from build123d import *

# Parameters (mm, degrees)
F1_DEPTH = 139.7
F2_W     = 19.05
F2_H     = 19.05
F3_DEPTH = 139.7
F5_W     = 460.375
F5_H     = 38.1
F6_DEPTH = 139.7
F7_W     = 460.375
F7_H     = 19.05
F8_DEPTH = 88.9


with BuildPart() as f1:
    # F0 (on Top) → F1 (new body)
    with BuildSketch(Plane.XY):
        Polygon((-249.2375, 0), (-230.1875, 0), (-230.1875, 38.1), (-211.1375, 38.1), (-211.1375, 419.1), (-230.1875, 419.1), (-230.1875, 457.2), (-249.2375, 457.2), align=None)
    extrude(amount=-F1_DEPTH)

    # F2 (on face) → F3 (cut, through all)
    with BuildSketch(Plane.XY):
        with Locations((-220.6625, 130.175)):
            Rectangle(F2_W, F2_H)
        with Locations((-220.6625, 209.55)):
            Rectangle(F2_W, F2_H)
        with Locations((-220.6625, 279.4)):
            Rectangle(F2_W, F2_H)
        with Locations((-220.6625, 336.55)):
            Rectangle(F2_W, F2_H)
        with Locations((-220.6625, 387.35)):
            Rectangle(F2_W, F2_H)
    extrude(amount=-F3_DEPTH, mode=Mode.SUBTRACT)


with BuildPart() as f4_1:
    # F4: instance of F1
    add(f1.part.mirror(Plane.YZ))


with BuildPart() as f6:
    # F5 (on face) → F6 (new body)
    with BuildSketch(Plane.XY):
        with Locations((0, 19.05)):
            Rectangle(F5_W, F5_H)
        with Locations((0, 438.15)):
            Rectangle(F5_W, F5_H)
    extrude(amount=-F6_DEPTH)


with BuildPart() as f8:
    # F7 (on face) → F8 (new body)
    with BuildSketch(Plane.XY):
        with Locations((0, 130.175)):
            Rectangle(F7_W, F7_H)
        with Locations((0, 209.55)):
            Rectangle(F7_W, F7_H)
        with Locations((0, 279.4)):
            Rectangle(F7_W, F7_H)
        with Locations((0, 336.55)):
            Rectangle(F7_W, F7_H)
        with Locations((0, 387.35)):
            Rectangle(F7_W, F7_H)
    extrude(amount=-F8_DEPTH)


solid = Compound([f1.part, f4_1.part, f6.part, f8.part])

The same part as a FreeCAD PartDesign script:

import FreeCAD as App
import Part
import Sketcher

V = App.Vector
Q = App.Units.Quantity


def add_polygon(sketch, points):
    """Adds a closed chain of lines whose ends are joined by coincident constraints."""
    first, n = sketch.GeometryCount, len(points)
    for a, b in zip(points, points[1:] + points[:1]):
        sketch.addGeometry(Part.LineSegment(App.Vector(*a, 0), App.Vector(*b, 0)), False)
    for i in range(n):
        sketch.addConstraint(Sketcher.Constraint("Coincident", first + i, 2, first + (i + 1) % n, 1))

doc = App.newDocument("Part")
params = doc.addObject("Spreadsheet::Sheet", "Params")
for row, (alias, value) in enumerate([
    ("sketch1_height", "15 in"),
    ("sketch1_height2", "18 in"),
    ("sketch1_width", "0.75 in"),
    ("pad1_length", "5.5 in"),
    ("sketch2_width", "0.75 in"),
    ("sketch3_height", "1.5 in"),
    ("sketch3_width", "18.125 in"),
    ("pad2_length", "5.5 in"),
    ("sketch4_height", "0.75 in"),
    ("sketch4_width", "18.125 in"),
    ("pad3_length", "3.5 in"),
], start=1):
    params.set(f"A{row}", alias)
    params.set(f"B{row}", "=" + value)
    params.setAlias(f"B{row}", alias)

body = doc.addObject("PartDesign::Body", "Body")

# Sketch on XY plane
sketch1 = body.newObject("Sketcher::SketchObject", "Sketch")
sketch1.AttachmentSupport = (doc.getObject("XY_Plane"), [""])
sketch1.MapMode = "FlatFace"
add_polygon(sketch1, [(-249.2375, 0), (-230.1875, 0), (-230.1875, 38.1), (-211.1375, 38.1), (-211.1375, 419.1), (-230.1875, 419.1), (-230.1875, 457.2), (-249.2375, 457.2)])  # lines 0-7
sketch1.addConstraint(Sketcher.Constraint("Horizontal", 0))
sketch1.addConstraint(Sketcher.Constraint("Vertical", 1))
sketch1.addConstraint(Sketcher.Constraint("Horizontal", 2))
sketch1.addConstraint(Sketcher.Constraint("Vertical", 3))
sketch1.addConstraint(Sketcher.Constraint("Horizontal", 4))
sketch1.addConstraint(Sketcher.Constraint("Vertical", 5))
sketch1.addConstraint(Sketcher.Constraint("Horizontal", 6))
sketch1.addConstraint(Sketcher.Constraint("Vertical", 7))
sketch1.addConstraint(Sketcher.Constraint("PointOnObject", 0, 2, -1))
sketch1.addConstraint(Sketcher.Constraint("Vertical", 1, 2, 4, 2))
sketch1.addConstraint(Sketcher.Constraint("Equal", 0, 2))
sketch1.addConstraint(Sketcher.Constraint("Equal", 1, 5))
sketch1.addConstraint(Sketcher.Constraint("DistanceY", 3, 1, 3, 2, Q("15 in")))
sketch1.addConstraint(Sketcher.Constraint("DistanceY", 7, 2, 7, 1, Q("18 in")))
sketch1.addConstraint(Sketcher.Constraint("DistanceX", 0, 1, 0, 2, Q("0.75 in")))
sketch1.addConstraint(Sketcher.Constraint("DistanceX", 0, 2, -1, 1, Q("9.0625 in")))
sketch1.setExpression("Constraints[20]", "Params.sketch1_height")
sketch1.setExpression("Constraints[21]", "Params.sketch1_height2")
sketch1.setExpression("Constraints[22]", "Params.sketch1_width")
pad1 = body.newObject("PartDesign::Pad", "Pad")
pad1.Profile = sketch1
pad1.setExpression("Length", "Params.pad1_length")
pad1.Reversed = True

# Sketch on XY plane
sketch2 = body.newObject("Sketcher::SketchObject", "Sketch001")
sketch2.AttachmentSupport = (doc.getObject("XY_Plane"), [""])
sketch2.MapMode = "FlatFace"
add_polygon(sketch2, [(-230.1875, 139.7), (-230.1875, 120.65), (-211.1375, 120.65), (-211.1375, 139.7)])  # lines 0-3
add_polygon(sketch2, [(-230.1875, 219.075), (-230.1875, 200.025), (-211.1375, 200.025), (-211.1375, 219.075)])  # lines 4-7
add_polygon(sketch2, [(-230.1875, 288.925), (-230.1875, 269.875), (-211.1375, 269.875), (-211.1375, 288.925)])  # lines 8-11
add_polygon(sketch2, [(-230.1875, 346.075), (-230.1875, 327.025), (-211.1375, 327.025), (-211.1375, 346.075)])  # lines 12-15
add_polygon(sketch2, [(-230.1875, 396.875), (-230.1875, 377.825), (-211.1375, 377.825), (-211.1375, 396.875)])  # lines 16-19
sketch2.addConstraint(Sketcher.Constraint("Vertical", 0))
sketch2.addConstraint(Sketcher.Constraint("Horizontal", 1))
sketch2.addConstraint(Sketcher.Constraint("Vertical", 2))
sketch2.addConstraint(Sketcher.Constraint("Horizontal", 3))
sketch2.addConstraint(Sketcher.Constraint("Vertical", 4))
sketch2.addConstraint(Sketcher.Constraint("Horizontal", 5))
sketch2.addConstraint(Sketcher.Constraint("Vertical", 6))
sketch2.addConstraint(Sketcher.Constraint("Horizontal", 7))
sketch2.addConstraint(Sketcher.Constraint("Vertical", 8))
sketch2.addConstraint(Sketcher.Constraint("Horizontal", 9))
sketch2.addConstraint(Sketcher.Constraint("Vertical", 10))
sketch2.addConstraint(Sketcher.Constraint("Horizontal", 11))
sketch2.addConstraint(Sketcher.Constraint("Vertical", 12))
sketch2.addConstraint(Sketcher.Constraint("Horizontal", 13))
sketch2.addConstraint(Sketcher.Constraint("Vertical", 14))
sketch2.addConstraint(Sketcher.Constraint("Horizontal", 15))
sketch2.addConstraint(Sketcher.Constraint("Vertical", 16))
sketch2.addConstraint(Sketcher.Constraint("Horizontal", 17))
sketch2.addConstraint(Sketcher.Constraint("Vertical", 18))
sketch2.addConstraint(Sketcher.Constraint("Horizontal", 19))
sketch2.addConstraint(Sketcher.Constraint("Vertical", 3, 2, 4, 2))
sketch2.addConstraint(Sketcher.Constraint("Vertical", 2, 2, 5, 2))
sketch2.addConstraint(Sketcher.Constraint("Vertical", 7, 2, 8, 2))
sketch2.addConstraint(Sketcher.Constraint("Vertical", 6, 2, 9, 2))
sketch2.addConstraint(Sketcher.Constraint("Vertical", 11, 2, 12, 2))
sketch2.addConstraint(Sketcher.Constraint("Vertical", 10, 2, 13, 2))
sketch2.addConstraint(Sketcher.Constraint("Vertical", 15, 2, 16, 2))
sketch2.addConstraint(Sketcher.Constraint("Vertical", 14, 2, 17, 2))
sketch2.addConstraint(Sketcher.Constraint("Equal", 19, 0))
sketch2.addConstraint(Sketcher.Constraint("Equal", 2, 4))
sketch2.addConstraint(Sketcher.Constraint("Equal", 6, 8))
sketch2.addConstraint(Sketcher.Constraint("Equal", 10, 12))
sketch2.addConstraint(Sketcher.Constraint("Equal", 14, 16))
sketch2.addConstraint(Sketcher.Constraint("DistanceY", 7, 2, 8, 2, Q("2 in")))
sketch2.addConstraint(Sketcher.Constraint("DistanceY", 9, 2, 14, 2, Q("3 in")))
sketch2.addConstraint(Sketcher.Constraint("DistanceY", 12, 2, 16, 2, Q("2 in")))
sketch2.addConstraint(Sketcher.Constraint("DistanceX", 1, 1, 1, 2, Q("0.75 in")))
sketch2.addConstraint(Sketcher.Constraint("DistanceY", -1, 1, 2, 2, Q("5.5 in")))
sketch2.addConstraint(Sketcher.Constraint("DistanceX", 0, 2, -1, 1, Q("9.0625 in")))
sketch2.addConstraint(Sketcher.Constraint("DistanceY", -1, 1, 4, 2, Q("7.875 in")))
sketch2.setExpression("Constraints[56]", "Params.sketch2_width")
pocket1 = body.newObject("PartDesign::Pocket", "Pocket")
pocket1.Profile = sketch2
pocket1.Type = "ThroughAll"
body2 = doc.addObject("PartDesign::Body", "Body001")
doc.recompute()

mirroring = doc.addObject("Part::Mirroring", "Mirroring")
mirroring.Source = body
mirroring.Base = V(0, 0, 0)
mirroring.Normal = V(1, 0, 0)
body2.BaseFeature = mirroring
doc.recompute()
body3 = doc.addObject("PartDesign::Body", "Body002")
body3.AllowCompound = True

# Sketch on XY plane
sketch3 = body3.newObject("Sketcher::SketchObject", "Sketch002")
sketch3.AttachmentSupport = (doc.getObject("XY_Plane002"), [""])
sketch3.MapMode = "FlatFace"
add_polygon(sketch3, [(-230.1875, 38.1), (-230.1875, 0), (230.1875, 0), (230.1875, 38.1)])  # lines 0-3
add_polygon(sketch3, [(-230.1875, 457.2), (-230.1875, 419.1), (230.1875, 419.1), (230.1875, 457.2)])  # lines 4-7
sketch3.addConstraint(Sketcher.Constraint("Vertical", 0))
sketch3.addConstraint(Sketcher.Constraint("Horizontal", 1))
sketch3.addConstraint(Sketcher.Constraint("Vertical", 2))
sketch3.addConstraint(Sketcher.Constraint("Horizontal", 3))
sketch3.addConstraint(Sketcher.Constraint("Vertical", 4))
sketch3.addConstraint(Sketcher.Constraint("Horizontal", 5))
sketch3.addConstraint(Sketcher.Constraint("Vertical", 6))
sketch3.addConstraint(Sketcher.Constraint("Horizontal", 7))
sketch3.addConstraint(Sketcher.Constraint("Symmetric", 0, 2, 1, 2, -1, 1))
sketch3.addConstraint(Sketcher.Constraint("Vertical", 3, 2, 4, 2))
sketch3.addConstraint(Sketcher.Constraint("Vertical", 2, 2, 5, 2))
sketch3.addConstraint(Sketcher.Constraint("Equal", 2, 4))
sketch3.addConstraint(Sketcher.Constraint("DistanceY", 0, 2, 0, 1, Q("1.5 in")))
sketch3.addConstraint(Sketcher.Constraint("DistanceY", -1, 1, 6, 2, Q("18 in")))
sketch3.addConstraint(Sketcher.Constraint("DistanceX", 1, 1, 1, 2, Q("18.125 in")))
sketch3.setExpression("Constraints[20]", "Params.sketch3_height")
sketch3.setExpression("Constraints[22]", "Params.sketch3_width")
pad2 = body3.newObject("PartDesign::Pad", "Pad001")
pad2.Profile = sketch3
pad2.setExpression("Length", "Params.pad2_length")
pad2.Reversed = True
body4 = doc.addObject("PartDesign::Body", "Body003")
body4.AllowCompound = True

# Sketch on XY plane
sketch4 = body4.newObject("Sketcher::SketchObject", "Sketch003")
sketch4.AttachmentSupport = (doc.getObject("XY_Plane003"), [""])
sketch4.MapMode = "FlatFace"
add_polygon(sketch4, [(-230.1875, 139.7), (-230.1875, 120.65), (230.1875, 120.65), (230.1875, 139.7)])  # lines 0-3
add_polygon(sketch4, [(-230.1875, 219.075), (-230.1875, 200.025), (230.1875, 200.025), (230.1875, 219.075)])  # lines 4-7
add_polygon(sketch4, [(-230.1875, 288.925), (-230.1875, 269.875), (230.1875, 269.875), (230.1875, 288.925)])  # lines 8-11
add_polygon(sketch4, [(-230.1875, 346.075), (-230.1875, 327.025), (230.1875, 327.025), (230.1875, 346.075)])  # lines 12-15
add_polygon(sketch4, [(-230.1875, 396.875), (-230.1875, 377.825), (230.1875, 377.825), (230.1875, 396.875)])  # lines 16-19
sketch4.addConstraint(Sketcher.Constraint("Vertical", 0))
sketch4.addConstraint(Sketcher.Constraint("Horizontal", 1))
sketch4.addConstraint(Sketcher.Constraint("Vertical", 2))
sketch4.addConstraint(Sketcher.Constraint("Horizontal", 3))
sketch4.addConstraint(Sketcher.Constraint("Vertical", 4))
sketch4.addConstraint(Sketcher.Constraint("Horizontal", 5))
sketch4.addConstraint(Sketcher.Constraint("Vertical", 6))
sketch4.addConstraint(Sketcher.Constraint("Horizontal", 7))
sketch4.addConstraint(Sketcher.Constraint("Vertical", 8))
sketch4.addConstraint(Sketcher.Constraint("Horizontal", 9))
sketch4.addConstraint(Sketcher.Constraint("Vertical", 10))
sketch4.addConstraint(Sketcher.Constraint("Horizontal", 11))
sketch4.addConstraint(Sketcher.Constraint("Vertical", 12))
sketch4.addConstraint(Sketcher.Constraint("Horizontal", 13))
sketch4.addConstraint(Sketcher.Constraint("Vertical", 14))
sketch4.addConstraint(Sketcher.Constraint("Horizontal", 15))
sketch4.addConstraint(Sketcher.Constraint("Vertical", 16))
sketch4.addConstraint(Sketcher.Constraint("Horizontal", 17))
sketch4.addConstraint(Sketcher.Constraint("Vertical", 18))
sketch4.addConstraint(Sketcher.Constraint("Horizontal", 19))
sketch4.addConstraint(Sketcher.Constraint("Vertical", 3, 2, 4, 2))
sketch4.addConstraint(Sketcher.Constraint("Vertical", 2, 2, 5, 2))
sketch4.addConstraint(Sketcher.Constraint("Vertical", 7, 2, 8, 2))
sketch4.addConstraint(Sketcher.Constraint("Vertical", 6, 2, 9, 2))
sketch4.addConstraint(Sketcher.Constraint("Vertical", 11, 2, 12, 2))
sketch4.addConstraint(Sketcher.Constraint("Vertical", 10, 2, 13, 2))
sketch4.addConstraint(Sketcher.Constraint("Vertical", 15, 2, 16, 2))
sketch4.addConstraint(Sketcher.Constraint("Vertical", 14, 2, 17, 2))
sketch4.addConstraint(Sketcher.Constraint("Equal", 2, 4))
sketch4.addConstraint(Sketcher.Constraint("Equal", 6, 8))
sketch4.addConstraint(Sketcher.Constraint("Equal", 10, 12))
sketch4.addConstraint(Sketcher.Constraint("Equal", 14, 16))
sketch4.addConstraint(Sketcher.Constraint("DistanceY", 7, 2, 8, 2, Q("2 in")))
sketch4.addConstraint(Sketcher.Constraint("DistanceY", 4, 2, 12, 2, Q("5 in")))
sketch4.addConstraint(Sketcher.Constraint("DistanceY", 12, 2, 16, 2, Q("2 in")))
sketch4.addConstraint(Sketcher.Constraint("DistanceY", 0, 2, 0, 1, Q("0.75 in")))
sketch4.addConstraint(Sketcher.Constraint("DistanceY", -1, 1, 2, 2, Q("5.5 in")))
sketch4.addConstraint(Sketcher.Constraint("DistanceX", 1, 1, 1, 2, Q("18.125 in")))
sketch4.addConstraint(Sketcher.Constraint("DistanceX", 0, 2, -1, 1, Q("9.0625 in")))
sketch4.addConstraint(Sketcher.Constraint("DistanceY", -1, 1, 4, 2, Q("7.875 in")))
sketch4.setExpression("Constraints[55]", "Params.sketch4_height")
sketch4.setExpression("Constraints[57]", "Params.sketch4_width")
pad3 = body4.newObject("PartDesign::Pad", "Pad002")
pad3.Profile = sketch4
pad3.setExpression("Length", "Params.pad3_length")
pad3.Reversed = True
mirroring.Visibility = False

doc.recompute()
